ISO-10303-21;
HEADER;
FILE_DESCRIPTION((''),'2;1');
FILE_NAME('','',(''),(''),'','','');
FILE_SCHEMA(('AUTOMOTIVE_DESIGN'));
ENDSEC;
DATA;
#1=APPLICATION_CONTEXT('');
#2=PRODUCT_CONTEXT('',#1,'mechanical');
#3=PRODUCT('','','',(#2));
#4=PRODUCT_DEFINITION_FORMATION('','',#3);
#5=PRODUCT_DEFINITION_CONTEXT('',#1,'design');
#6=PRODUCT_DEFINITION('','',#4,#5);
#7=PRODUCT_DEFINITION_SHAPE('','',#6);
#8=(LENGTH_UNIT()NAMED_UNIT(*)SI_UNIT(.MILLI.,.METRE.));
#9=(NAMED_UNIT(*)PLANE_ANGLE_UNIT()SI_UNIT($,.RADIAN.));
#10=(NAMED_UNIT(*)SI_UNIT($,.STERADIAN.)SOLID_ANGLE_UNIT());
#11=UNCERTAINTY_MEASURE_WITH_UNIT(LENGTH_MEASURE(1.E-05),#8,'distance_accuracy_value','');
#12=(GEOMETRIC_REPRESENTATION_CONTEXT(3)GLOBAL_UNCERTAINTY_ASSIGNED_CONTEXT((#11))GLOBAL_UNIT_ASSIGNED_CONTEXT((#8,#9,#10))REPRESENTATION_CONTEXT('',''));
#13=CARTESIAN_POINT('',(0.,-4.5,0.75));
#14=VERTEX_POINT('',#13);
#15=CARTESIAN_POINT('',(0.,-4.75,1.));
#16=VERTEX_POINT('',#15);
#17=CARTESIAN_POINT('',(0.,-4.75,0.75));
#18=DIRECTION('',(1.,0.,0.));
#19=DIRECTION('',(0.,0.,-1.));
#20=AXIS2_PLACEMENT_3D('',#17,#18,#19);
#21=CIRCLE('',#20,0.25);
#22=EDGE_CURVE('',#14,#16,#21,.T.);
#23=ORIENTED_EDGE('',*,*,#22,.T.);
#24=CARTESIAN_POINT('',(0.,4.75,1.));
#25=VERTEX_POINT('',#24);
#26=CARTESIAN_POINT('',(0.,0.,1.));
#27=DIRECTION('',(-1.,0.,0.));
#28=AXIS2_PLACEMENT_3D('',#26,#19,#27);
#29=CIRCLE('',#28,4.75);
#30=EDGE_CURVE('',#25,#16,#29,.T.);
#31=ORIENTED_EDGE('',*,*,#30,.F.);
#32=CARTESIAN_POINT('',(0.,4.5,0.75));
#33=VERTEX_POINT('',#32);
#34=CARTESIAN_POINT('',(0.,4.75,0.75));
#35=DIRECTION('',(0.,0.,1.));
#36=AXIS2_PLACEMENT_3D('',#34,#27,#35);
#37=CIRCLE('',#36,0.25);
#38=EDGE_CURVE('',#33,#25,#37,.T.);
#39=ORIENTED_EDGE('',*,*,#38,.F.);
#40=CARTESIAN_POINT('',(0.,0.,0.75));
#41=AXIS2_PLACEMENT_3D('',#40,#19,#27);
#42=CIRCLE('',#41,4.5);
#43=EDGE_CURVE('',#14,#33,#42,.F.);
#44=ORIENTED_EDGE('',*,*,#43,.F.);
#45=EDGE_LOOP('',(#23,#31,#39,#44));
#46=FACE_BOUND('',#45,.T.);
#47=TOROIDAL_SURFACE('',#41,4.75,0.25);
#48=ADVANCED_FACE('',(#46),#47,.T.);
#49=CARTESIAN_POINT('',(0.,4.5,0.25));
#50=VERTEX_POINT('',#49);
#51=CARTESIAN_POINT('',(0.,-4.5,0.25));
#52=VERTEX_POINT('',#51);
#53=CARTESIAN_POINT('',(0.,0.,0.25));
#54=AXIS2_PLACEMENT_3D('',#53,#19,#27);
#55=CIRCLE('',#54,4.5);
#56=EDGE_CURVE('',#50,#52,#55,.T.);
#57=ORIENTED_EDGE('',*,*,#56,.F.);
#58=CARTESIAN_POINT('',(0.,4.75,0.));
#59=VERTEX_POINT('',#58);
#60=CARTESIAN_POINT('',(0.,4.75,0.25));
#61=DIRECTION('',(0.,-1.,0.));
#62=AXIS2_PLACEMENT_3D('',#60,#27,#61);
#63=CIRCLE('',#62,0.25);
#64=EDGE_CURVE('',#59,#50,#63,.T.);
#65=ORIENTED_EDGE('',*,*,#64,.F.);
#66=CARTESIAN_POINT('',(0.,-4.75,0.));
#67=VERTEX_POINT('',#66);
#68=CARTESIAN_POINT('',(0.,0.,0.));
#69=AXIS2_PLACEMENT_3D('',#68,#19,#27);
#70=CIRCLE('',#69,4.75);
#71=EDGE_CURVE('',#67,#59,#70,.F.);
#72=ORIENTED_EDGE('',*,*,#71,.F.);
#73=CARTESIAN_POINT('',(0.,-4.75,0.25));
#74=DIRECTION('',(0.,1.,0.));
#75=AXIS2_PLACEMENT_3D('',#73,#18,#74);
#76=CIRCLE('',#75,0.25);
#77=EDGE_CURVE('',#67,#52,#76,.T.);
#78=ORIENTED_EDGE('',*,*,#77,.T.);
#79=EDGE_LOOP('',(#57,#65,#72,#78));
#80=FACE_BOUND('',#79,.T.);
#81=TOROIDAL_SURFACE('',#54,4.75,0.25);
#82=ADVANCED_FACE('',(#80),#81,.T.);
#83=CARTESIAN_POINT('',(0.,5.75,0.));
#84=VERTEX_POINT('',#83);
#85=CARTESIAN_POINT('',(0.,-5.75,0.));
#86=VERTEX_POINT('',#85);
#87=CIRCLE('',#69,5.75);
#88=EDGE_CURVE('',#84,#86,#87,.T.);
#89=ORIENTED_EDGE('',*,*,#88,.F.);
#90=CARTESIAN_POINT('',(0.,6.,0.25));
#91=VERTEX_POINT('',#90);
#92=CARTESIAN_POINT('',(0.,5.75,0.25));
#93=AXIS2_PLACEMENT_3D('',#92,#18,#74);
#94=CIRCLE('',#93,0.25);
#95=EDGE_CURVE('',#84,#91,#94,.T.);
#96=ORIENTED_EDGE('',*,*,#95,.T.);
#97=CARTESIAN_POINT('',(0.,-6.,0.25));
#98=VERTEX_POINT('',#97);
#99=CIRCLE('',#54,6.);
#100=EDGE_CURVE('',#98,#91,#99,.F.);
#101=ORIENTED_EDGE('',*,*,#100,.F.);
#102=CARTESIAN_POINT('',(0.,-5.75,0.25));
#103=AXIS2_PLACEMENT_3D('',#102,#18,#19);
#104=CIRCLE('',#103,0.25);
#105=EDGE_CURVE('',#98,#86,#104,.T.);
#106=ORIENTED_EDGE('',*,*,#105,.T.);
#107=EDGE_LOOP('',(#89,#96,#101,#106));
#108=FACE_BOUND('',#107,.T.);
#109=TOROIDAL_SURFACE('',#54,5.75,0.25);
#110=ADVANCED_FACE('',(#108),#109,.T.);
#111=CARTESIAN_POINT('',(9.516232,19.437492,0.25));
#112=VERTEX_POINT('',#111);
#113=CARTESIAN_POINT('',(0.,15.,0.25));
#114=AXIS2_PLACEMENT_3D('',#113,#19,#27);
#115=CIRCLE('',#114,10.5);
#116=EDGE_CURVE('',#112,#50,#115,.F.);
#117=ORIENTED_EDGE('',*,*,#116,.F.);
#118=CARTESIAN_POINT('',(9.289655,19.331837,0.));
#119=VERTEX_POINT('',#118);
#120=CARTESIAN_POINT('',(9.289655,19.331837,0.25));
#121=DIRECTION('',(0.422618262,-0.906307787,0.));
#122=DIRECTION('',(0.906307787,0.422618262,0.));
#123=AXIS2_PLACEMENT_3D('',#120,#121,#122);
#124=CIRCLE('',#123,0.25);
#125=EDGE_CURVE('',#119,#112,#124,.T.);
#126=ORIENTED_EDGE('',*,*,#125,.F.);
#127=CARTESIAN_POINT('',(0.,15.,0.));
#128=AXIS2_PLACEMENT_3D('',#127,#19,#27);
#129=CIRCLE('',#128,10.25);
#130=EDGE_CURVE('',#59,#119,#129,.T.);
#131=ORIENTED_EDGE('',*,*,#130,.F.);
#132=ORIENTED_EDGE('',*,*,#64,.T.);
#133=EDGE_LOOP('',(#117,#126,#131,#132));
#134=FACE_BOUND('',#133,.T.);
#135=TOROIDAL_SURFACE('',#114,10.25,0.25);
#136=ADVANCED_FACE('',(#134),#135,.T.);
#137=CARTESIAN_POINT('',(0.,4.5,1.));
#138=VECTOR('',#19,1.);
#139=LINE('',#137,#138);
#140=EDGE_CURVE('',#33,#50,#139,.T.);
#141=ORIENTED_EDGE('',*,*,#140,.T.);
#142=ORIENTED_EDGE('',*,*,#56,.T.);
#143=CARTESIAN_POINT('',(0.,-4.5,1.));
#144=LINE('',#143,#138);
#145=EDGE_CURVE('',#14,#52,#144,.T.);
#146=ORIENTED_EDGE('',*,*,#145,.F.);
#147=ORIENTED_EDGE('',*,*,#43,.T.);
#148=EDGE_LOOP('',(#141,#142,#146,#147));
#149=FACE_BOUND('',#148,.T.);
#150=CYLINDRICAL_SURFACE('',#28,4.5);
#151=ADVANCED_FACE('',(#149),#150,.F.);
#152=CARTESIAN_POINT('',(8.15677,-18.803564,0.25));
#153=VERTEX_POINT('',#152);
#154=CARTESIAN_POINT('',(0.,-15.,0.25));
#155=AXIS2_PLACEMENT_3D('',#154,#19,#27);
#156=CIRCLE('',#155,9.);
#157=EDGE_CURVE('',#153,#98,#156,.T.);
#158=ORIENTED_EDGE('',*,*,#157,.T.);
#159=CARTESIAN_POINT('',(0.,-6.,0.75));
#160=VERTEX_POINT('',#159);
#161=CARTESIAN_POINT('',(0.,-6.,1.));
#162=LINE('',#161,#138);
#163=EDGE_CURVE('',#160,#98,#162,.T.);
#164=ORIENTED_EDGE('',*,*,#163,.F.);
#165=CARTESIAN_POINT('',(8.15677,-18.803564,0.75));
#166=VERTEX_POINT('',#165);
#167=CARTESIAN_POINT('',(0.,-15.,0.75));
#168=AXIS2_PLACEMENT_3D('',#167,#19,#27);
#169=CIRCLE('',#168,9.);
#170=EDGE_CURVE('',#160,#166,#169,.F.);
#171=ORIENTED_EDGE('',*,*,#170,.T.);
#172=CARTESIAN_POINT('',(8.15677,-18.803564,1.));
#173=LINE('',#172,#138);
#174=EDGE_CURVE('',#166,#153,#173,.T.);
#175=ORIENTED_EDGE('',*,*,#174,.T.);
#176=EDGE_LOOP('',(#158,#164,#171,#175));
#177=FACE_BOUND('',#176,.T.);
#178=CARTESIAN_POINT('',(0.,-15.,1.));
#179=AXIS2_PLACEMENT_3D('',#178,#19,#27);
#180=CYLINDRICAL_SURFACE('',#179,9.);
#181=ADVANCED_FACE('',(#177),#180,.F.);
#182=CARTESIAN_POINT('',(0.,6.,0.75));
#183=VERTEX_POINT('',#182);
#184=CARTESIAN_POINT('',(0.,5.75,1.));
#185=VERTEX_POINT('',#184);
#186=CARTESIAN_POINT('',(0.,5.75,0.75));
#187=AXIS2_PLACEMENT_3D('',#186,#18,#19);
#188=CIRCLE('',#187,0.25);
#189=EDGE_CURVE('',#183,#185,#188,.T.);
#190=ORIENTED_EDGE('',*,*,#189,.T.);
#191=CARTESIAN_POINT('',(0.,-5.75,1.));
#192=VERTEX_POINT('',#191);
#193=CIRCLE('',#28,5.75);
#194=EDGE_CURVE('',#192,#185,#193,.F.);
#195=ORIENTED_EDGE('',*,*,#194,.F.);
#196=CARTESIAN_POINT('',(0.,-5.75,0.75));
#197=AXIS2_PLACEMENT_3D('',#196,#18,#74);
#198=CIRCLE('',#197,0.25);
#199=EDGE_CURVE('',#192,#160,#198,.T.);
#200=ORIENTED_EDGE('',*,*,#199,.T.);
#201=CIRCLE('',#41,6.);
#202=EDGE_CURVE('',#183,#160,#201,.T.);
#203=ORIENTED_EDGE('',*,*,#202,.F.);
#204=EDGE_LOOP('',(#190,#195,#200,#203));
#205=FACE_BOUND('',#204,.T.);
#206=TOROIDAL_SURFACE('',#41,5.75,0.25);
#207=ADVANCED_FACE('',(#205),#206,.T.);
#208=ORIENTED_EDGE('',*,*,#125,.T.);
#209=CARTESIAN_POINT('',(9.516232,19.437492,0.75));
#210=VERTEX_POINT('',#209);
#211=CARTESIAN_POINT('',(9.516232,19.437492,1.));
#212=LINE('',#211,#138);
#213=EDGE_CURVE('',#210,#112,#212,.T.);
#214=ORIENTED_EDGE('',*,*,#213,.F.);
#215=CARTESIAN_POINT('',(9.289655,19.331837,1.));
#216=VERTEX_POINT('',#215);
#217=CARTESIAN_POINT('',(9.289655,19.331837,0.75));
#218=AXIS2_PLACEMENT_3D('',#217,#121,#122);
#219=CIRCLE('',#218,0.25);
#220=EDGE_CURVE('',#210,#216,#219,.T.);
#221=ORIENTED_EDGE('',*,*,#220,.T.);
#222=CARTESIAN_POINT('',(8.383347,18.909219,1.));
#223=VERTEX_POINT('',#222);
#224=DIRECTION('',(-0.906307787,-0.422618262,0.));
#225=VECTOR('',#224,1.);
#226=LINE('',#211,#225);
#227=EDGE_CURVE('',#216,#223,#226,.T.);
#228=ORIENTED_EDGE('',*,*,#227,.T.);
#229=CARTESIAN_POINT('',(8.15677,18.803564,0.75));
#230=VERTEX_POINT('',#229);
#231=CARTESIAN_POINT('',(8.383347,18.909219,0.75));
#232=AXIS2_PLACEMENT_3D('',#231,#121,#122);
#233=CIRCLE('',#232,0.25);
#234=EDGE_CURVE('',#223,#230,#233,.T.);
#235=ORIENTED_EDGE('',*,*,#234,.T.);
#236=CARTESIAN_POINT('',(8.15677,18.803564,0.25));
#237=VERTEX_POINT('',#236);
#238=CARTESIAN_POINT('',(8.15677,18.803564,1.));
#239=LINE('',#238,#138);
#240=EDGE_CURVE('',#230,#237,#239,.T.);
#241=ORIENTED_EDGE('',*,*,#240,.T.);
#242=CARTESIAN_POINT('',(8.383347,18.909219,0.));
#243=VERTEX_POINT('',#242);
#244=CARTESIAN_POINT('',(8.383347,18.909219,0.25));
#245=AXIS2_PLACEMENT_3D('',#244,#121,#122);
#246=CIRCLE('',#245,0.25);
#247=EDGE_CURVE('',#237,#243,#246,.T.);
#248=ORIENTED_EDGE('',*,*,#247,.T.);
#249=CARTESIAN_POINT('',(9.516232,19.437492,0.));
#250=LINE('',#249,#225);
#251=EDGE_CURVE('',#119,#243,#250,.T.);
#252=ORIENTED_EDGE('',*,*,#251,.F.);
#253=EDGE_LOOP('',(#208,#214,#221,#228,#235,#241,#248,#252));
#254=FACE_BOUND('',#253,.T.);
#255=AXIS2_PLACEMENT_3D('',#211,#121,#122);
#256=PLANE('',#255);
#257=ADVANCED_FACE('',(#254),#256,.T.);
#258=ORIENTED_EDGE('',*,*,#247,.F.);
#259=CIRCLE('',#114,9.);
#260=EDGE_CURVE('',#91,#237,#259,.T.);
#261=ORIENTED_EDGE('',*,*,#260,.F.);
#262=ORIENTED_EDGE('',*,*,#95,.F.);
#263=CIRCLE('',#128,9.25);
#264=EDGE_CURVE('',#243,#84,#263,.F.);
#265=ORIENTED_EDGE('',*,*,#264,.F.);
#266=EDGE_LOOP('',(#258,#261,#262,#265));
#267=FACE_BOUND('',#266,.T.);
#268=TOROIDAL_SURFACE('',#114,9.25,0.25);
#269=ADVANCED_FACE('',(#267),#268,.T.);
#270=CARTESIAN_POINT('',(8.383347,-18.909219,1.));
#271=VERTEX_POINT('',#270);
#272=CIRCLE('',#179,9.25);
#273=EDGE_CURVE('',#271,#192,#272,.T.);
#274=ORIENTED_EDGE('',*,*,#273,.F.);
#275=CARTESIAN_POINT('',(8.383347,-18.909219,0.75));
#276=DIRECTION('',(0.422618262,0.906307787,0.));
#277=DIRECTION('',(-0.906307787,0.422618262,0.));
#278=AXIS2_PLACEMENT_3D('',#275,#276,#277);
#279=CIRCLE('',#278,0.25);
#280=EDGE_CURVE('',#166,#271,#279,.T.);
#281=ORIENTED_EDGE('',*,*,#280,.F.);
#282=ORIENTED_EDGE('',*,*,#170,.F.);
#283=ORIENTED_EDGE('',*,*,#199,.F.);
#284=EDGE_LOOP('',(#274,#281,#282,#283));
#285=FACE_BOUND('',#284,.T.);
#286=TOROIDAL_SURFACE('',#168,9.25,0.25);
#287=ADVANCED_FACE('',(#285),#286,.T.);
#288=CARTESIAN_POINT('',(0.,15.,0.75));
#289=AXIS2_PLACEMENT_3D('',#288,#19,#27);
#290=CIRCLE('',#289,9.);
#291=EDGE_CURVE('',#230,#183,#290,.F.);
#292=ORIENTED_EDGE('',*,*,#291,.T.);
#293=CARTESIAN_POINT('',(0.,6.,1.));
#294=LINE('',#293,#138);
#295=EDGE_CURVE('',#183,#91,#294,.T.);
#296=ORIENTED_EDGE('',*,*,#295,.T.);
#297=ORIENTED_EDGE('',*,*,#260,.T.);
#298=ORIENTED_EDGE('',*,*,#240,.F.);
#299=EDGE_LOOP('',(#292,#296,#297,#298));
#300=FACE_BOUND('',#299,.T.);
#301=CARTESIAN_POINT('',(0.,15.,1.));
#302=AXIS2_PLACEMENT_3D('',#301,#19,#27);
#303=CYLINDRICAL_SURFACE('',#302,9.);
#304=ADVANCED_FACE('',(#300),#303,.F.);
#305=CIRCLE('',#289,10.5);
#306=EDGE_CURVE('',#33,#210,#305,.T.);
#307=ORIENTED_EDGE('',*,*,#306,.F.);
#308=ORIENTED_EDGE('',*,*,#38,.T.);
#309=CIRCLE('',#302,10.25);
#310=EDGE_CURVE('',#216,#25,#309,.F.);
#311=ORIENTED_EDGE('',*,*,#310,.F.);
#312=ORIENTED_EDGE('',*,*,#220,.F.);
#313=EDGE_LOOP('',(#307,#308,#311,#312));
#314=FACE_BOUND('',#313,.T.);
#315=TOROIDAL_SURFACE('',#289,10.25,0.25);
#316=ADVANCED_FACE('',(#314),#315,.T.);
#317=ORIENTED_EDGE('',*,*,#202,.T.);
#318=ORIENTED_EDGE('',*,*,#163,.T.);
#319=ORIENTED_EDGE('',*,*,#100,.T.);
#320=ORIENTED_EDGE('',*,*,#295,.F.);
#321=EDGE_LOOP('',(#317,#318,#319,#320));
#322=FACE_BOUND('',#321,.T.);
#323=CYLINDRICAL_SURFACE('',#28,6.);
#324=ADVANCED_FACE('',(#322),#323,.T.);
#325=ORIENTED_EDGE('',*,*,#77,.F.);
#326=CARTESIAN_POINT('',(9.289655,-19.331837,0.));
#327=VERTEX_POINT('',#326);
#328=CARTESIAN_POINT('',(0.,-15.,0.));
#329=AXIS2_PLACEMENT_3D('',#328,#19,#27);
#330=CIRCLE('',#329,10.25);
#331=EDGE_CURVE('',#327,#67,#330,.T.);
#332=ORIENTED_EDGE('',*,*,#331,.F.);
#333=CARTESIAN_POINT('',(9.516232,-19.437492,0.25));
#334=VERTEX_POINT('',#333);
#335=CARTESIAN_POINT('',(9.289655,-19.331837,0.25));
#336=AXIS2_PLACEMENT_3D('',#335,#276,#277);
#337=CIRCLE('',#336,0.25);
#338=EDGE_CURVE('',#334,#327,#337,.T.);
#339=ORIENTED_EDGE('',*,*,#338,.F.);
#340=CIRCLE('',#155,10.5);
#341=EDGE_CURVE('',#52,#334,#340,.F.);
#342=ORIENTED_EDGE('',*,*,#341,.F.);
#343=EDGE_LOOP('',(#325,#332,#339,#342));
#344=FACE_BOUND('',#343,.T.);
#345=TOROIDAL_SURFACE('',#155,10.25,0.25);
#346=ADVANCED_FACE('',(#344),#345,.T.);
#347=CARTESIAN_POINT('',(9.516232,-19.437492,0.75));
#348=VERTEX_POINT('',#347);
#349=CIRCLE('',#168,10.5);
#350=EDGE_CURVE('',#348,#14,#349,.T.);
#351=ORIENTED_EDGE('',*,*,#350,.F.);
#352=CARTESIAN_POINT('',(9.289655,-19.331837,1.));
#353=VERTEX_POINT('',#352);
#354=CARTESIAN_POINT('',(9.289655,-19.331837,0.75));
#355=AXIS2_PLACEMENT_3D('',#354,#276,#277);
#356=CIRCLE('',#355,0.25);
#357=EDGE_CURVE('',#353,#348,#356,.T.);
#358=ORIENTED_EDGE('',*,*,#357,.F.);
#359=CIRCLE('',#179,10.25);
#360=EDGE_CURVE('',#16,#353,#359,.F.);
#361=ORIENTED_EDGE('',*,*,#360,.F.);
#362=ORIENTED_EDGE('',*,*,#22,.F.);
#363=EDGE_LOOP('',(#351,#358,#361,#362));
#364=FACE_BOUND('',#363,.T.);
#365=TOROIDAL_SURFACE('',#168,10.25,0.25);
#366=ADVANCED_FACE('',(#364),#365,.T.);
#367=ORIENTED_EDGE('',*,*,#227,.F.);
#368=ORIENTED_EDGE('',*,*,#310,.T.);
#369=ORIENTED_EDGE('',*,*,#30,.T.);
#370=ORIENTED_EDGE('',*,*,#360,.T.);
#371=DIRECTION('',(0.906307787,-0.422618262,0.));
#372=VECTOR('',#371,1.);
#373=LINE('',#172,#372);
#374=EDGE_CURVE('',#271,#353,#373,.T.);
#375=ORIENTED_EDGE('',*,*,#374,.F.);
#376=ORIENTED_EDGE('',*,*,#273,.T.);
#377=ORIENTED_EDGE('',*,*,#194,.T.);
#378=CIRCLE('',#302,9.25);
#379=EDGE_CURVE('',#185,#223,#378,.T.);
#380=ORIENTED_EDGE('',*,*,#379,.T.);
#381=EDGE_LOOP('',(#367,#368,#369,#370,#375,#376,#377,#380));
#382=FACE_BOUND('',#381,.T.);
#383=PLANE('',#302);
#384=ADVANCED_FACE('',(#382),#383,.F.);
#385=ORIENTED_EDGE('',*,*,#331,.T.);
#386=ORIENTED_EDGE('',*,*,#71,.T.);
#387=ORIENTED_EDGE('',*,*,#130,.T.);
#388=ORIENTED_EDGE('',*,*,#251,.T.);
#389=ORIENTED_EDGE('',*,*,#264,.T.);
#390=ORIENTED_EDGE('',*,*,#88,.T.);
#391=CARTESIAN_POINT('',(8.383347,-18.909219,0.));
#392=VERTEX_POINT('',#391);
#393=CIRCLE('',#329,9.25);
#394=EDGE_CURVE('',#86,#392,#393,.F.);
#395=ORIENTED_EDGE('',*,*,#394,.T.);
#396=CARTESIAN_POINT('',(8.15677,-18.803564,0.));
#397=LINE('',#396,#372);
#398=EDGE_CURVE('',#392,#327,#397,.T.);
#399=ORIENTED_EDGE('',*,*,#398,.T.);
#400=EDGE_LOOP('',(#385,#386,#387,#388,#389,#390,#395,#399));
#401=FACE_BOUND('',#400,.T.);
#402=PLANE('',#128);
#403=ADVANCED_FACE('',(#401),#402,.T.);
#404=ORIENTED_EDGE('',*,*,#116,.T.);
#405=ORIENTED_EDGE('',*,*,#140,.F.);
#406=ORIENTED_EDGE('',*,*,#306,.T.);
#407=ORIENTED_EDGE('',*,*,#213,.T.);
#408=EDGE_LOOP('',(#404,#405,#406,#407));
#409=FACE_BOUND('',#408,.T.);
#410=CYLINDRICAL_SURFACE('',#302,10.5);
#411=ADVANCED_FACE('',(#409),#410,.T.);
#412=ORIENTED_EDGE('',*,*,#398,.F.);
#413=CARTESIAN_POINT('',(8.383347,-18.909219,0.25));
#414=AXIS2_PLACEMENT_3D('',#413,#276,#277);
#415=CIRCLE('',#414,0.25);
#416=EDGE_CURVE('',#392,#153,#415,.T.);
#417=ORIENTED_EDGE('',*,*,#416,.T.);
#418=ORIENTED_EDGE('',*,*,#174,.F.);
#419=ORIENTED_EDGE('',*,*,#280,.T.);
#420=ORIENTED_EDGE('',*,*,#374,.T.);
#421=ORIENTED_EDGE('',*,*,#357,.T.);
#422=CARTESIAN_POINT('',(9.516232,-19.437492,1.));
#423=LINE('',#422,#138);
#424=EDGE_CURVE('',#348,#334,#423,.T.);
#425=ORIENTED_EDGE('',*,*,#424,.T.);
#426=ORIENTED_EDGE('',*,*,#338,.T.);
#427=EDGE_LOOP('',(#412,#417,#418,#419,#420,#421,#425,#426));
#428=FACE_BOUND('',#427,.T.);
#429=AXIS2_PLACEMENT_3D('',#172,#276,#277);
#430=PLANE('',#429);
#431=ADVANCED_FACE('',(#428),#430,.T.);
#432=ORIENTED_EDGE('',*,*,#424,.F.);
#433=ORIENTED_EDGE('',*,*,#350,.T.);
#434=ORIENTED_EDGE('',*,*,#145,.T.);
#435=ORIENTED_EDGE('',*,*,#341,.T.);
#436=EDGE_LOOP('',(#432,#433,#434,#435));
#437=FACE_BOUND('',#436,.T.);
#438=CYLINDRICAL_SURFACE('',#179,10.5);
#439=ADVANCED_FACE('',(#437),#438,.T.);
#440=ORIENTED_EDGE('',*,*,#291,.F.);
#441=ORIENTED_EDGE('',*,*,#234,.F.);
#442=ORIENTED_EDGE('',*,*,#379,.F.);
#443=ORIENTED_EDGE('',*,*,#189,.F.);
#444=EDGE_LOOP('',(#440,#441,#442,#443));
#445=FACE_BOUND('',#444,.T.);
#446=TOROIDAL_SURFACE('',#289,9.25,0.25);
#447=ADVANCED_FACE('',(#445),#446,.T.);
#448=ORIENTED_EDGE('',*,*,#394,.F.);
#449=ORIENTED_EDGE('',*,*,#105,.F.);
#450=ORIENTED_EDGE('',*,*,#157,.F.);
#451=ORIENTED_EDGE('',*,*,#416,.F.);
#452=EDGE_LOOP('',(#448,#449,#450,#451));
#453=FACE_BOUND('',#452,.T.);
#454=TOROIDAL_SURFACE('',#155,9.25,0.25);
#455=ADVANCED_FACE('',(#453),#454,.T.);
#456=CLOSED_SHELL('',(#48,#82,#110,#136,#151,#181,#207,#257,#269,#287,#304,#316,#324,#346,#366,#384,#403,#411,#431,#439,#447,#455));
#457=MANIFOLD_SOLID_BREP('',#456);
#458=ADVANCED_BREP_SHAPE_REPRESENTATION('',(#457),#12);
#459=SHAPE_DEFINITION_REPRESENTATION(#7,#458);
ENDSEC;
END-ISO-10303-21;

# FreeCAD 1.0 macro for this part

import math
import FreeCAD as App
import Part
import Sketcher

V = App.Vector
Q = App.Units.Quantity


def edges_at(feature, points):
    """Names of the edges that pass closest to the given points."""
    edges = feature.Shape.Edges
    near = lambda p: min(range(len(edges)), key=lambda i: edges[i].distToShape(Part.Vertex(*p))[0])
    return sorted({f"Edge{near(p) + 1}" for p in points})

doc = App.newDocument("Part")
body = doc.addObject("PartDesign::Body", "Body")

sketch1 = doc.addObject("Sketcher::SketchObject", "Sketch")
body.addObject(sketch1)
sketch1.AttachmentSupport = (doc.XY_Plane, [""])
sketch1.MapMode = "FlatFace"
sketch1.addGeometry(Part.ArcOfCircle(Part.Circle(V(0, 15, 0), V(0, 0, 1), 9), math.radians(25), math.radians(270)), False)
sketch1.addGeometry(Part.LineSegment(V(8.15677, 18.803564, 0), V(9.516232, 19.437492, 0)), False)
sketch1.addGeometry(Part.ArcOfCircle(Part.Circle(V(0, 15, 0), V(0, 0, 1), 10.5), math.radians(25), math.radians(270)), False)
sketch1.addGeometry(Part.ArcOfCircle(Part.Circle(V(0, 0, 0), V(0, 0, 1), 4.5), math.radians(0), math.radians(90)), False)
sketch1.addGeometry(Part.ArcOfCircle(Part.Circle(V(0, 0, 0), V(0, 0, 1), 4.5), math.radians(-90), math.radians(0)), False)
sketch1.addGeometry(Part.ArcOfCircle(Part.Circle(V(0, -15, 0), V(0, 0, 1), 10.5), math.radians(90), math.radians(335)), False)
sketch1.addGeometry(Part.LineSegment(V(9.516232, -19.437492, 0), V(8.15677, -18.803564, 0)), False)
sketch1.addGeometry(Part.ArcOfCircle(Part.Circle(V(0, -15, 0), V(0, 0, 1), 9), math.radians(90), math.radians(335)), False)
sketch1.addGeometry(Part.ArcOfCircle(Part.Circle(V(0, 0, 0), V(0, 0, 1), 6), math.radians(-90), math.radians(0)), False)
sketch1.addGeometry(Part.ArcOfCircle(Part.Circle(V(0, 0, 0), V(0, 0, 1), 6), math.radians(0), math.radians(90)), False)
sketch1.addConstraint(Sketcher.Constraint("Coincident", 0, 1, 1, 1))
sketch1.addConstraint(Sketcher.Constraint("Coincident", 1, 2, 2, 1))
sketch1.addConstraint(Sketcher.Constraint("Tangent", 2, 2, 3, 2))
sketch1.addConstraint(Sketcher.Constraint("Tangent", 3, 1, 4, 2))
sketch1.addConstraint(Sketcher.Constraint("Tangent", 4, 1, 5, 1))
sketch1.addConstraint(Sketcher.Constraint("Coincident", 5, 2, 6, 1))
sketch1.addConstraint(Sketcher.Constraint("Coincident", 6, 2, 7, 2))
sketch1.addConstraint(Sketcher.Constraint("Tangent", 7, 1, 8, 1))
sketch1.addConstraint(Sketcher.Constraint("Tangent", 8, 2, 9, 1))
sketch1.addConstraint(Sketcher.Constraint("Tangent", 9, 2, 0, 2))
sketch1.addConstraint(Sketcher.Constraint("Coincident", 3, 3, -1, 1))
sketch1.addConstraint(Sketcher.Constraint("Coincident", 8, 3, -1, 1))
sketch1.addConstraint(Sketcher.Constraint("Coincident", 2, 3, 0, 3))
sketch1.addConstraint(Sketcher.Constraint("Coincident", 7, 3, 5, 3))
sketch1.addConstraint(Sketcher.Constraint("Equal", 3, 4))
sketch1.addConstraint(Sketcher.Constraint("Equal", 2, 5))
sketch1.addConstraint(Sketcher.Constraint("Equal", 0, 7))
sketch1.addConstraint(Sketcher.Constraint("Symmetric", 1, 2, 5, 2, -1))
sketch1.addConstraint(Sketcher.Constraint("PointOnObject", 0, 3, -2))
sketch1.addConstraint(Sketcher.Constraint("PointOnObject", 3, 1, -1))
sketch1.addConstraint(Sketcher.Constraint("PointOnObject", 8, 2, -1))
sketch1.addConstraint(Sketcher.Constraint("Vertical", 0, 1, 6, 2))
sketch1.addConstraint(Sketcher.Constraint("Radius", 0, 9.0))
sketch1.addConstraint(Sketcher.Constraint("Radius", 8, 6.0))
sketch1.addConstraint(Sketcher.Constraint("Radius", 2, 10.5))
sketch1.addConstraint(Sketcher.Constraint("Angle", 1, Q("25 deg")))
sketch1.addConstraint(Sketcher.Constraint("DistanceX", -1, 1, 0, 1, 8.15677))
pad1 = doc.addObject("PartDesign::Pad", "Pad")
body.addObject(pad1)
pad1.Profile = sketch1
pad1.Length = 1
doc.recompute()

fillet = doc.addObject("PartDesign::Fillet", "Fillet")
body.addObject(fillet)
fillet.Base = (pad1, edges_at(pad1, [
    (-8.856, -20.642, 0),
    (4.5, 0, 0.5),
    (-8.856, 20.642, 0),
    (-7.591, 19.836, 0),
    (-8.856, 20.642, 1),
    (4.5, 0, 0.5),
    (-8.856, -20.642, 1),
    (-7.591, -19.836, 1),
    (6, 0, 0.5),
    (-7.591, 19.836, 1),
    (6, 0, 0.5),
    (-7.591, -19.836, 0),
]))
fillet.Radius = 0.25

doc.recompute()
